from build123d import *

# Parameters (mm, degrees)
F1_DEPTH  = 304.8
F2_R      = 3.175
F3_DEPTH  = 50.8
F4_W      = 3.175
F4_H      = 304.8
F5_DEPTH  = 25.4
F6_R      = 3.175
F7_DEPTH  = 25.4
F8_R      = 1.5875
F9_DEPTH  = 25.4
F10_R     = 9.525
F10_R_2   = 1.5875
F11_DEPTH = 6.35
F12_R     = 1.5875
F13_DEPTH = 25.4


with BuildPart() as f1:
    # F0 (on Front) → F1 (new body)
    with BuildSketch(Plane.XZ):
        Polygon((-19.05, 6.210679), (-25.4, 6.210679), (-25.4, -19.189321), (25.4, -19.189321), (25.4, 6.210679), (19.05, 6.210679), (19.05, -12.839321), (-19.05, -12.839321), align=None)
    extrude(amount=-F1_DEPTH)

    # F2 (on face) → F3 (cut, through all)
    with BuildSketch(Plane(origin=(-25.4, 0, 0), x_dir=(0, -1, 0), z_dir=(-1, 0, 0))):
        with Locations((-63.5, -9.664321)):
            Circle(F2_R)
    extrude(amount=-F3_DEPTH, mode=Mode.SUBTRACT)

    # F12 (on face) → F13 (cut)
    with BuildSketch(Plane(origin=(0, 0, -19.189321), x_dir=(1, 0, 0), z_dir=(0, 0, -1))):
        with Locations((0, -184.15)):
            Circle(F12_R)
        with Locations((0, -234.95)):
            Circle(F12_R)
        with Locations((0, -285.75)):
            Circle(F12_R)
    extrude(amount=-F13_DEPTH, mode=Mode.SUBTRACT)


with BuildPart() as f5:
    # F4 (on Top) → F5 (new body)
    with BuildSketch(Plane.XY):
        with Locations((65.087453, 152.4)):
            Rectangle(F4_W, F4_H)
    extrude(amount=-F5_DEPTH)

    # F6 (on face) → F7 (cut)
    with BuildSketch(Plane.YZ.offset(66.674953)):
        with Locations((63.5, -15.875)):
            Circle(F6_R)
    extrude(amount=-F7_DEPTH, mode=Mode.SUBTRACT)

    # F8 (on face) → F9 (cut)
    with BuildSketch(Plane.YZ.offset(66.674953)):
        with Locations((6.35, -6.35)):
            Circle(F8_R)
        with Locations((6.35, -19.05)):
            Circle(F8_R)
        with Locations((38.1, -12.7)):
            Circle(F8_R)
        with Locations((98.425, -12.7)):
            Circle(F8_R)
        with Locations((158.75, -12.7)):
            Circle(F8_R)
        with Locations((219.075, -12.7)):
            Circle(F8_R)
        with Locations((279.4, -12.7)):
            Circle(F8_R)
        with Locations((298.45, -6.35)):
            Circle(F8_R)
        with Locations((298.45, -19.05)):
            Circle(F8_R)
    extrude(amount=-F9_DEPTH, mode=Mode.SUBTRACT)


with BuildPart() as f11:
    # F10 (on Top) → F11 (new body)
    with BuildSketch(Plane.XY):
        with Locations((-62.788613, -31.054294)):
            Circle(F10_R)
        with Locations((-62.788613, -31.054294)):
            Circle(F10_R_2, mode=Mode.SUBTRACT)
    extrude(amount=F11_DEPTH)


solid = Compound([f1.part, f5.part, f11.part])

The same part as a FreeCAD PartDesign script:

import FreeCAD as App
import Part
import Sketcher
Q = App.Units.Quantity


def add_polygon(sketch, points):
    """Adds a closed chain of lines whose ends are joined by coincident constraints."""
    first, n = sketch.GeometryCount, len(points)
    for a, b in zip(points, points[1:] + points[:1]):
        sketch.addGeometry(Part.LineSegment(App.Vector(*a, 0), App.Vector(*b, 0)), False)
    for i in range(n):
        sketch.addConstraint(Sketcher.Constraint("Coincident", first + i, 2, first + (i + 1) % n, 1))

doc = App.newDocument("Part")
body = doc.addObject("PartDesign::Body", "Body")

sketch1 = doc.addObject("Sketcher::SketchObject", "Sketch")
body.addObject(sketch1)
sketch1.AttachmentSupport = (doc.XZ_Plane, [""])
sketch1.MapMode = "FlatFace"
add_polygon(sketch1, [(-19, 6), (-25, 6), (-25, -19), (25, -19), (25, 6), (19, 6), (19, -13), (-19, -13)])
sketch1.addConstraint([
    Sketcher.Constraint("Horizontal", 0),
    Sketcher.Constraint("Vertical", 1),
    Sketcher.Constraint("Horizontal", 2),
    Sketcher.Constraint("Vertical", 3),
    Sketcher.Constraint("Horizontal", 4),
    Sketcher.Constraint("Vertical", 5),
    Sketcher.Constraint("Horizontal", 6),
    Sketcher.Constraint("Vertical", 7),
    Sketcher.Constraint("Symmetric", 0, 2, 3, 2, -2),
    Sketcher.Constraint("Equal", 0, 4),
    Sketcher.Constraint("DistanceX", 2, 1, 2, 2, Q("2 in")),
    Sketcher.Constraint("DistanceY", 1, 2, 1, 1, Q("1 in")),
    Sketcher.Constraint("DistanceX", 6, 2, 6, 1, Q("1.5 in")),
    Sketcher.Constraint("DistanceY", 5, 2, 5, 1, Q("0.75 in")),
    Sketcher.Constraint("DistanceY", -1, 1, 0, 2, Q("6.210679 mm")),
])
pad1 = doc.addObject("PartDesign::Pad", "Pad")
body.addObject(pad1)
pad1.Profile = sketch1
pad1.Length = Q("12 in")
pad1.Reversed = True

sketch2 = doc.addObject("Sketcher::SketchObject", "Sketch001")
body.addObject(sketch2)
sketch2.AttachmentSupport = (doc.YZ_Plane, [""])
sketch2.MapMode = "FlatFace"
sketch2.AttachmentOffset = App.Placement(App.Vector(0, 0, -1 * 25.4), App.Rotation())
sketch2.addGeometry(Part.Circle(App.Vector(63.5, -9.7, 0), App.Vector(0, 0, 1), 3.2), False)
sketch2.addConstraint([
    Sketcher.Constraint("Diameter", 0, Q("0.25 in")),
    Sketcher.Constraint("DistanceX", -1, 1, 0, 3, Q("2.5 in")),
    Sketcher.Constraint("DistanceY", 0, 3, -1, 1, Q("9.664321 mm")),
])
pocket1 = doc.addObject("PartDesign::Pocket", "Pocket")
body.addObject(pocket1)
pocket1.Profile = sketch2
pocket1.Type = "ThroughAll"
pocket1.Reversed = True

sketch3 = doc.addObject("Sketcher::SketchObject", "Sketch002")
body.addObject(sketch3)
sketch3.AttachmentSupport = (doc.XY_Plane, [""])
sketch3.MapMode = "FlatFace"
sketch3.AttachmentOffset = App.Placement(App.Vector(0, 0, -19.189321), App.Rotation())
sketch3.addGeometry([
    Part.Circle(App.Vector(0, 184.2, 0), App.Vector(0, 0, 1), 1.6),
    Part.Circle(App.Vector(0, 234.9, 0), App.Vector(0, 0, 1), 1.6),
    Part.Circle(App.Vector(0, 285.8, 0), App.Vector(0, 0, 1), 1.6),
], False)
sketch3.addConstraint([
    Sketcher.Constraint("Equal", 0, 1),
    Sketcher.Constraint("Equal", 1, 2),
    Sketcher.Constraint("PointOnObject", 0, 3, -2),
    Sketcher.Constraint("PointOnObject", 1, 3, -2),
    Sketcher.Constraint("PointOnObject", 2, 3, -2),
    Sketcher.Constraint("Diameter", 0, Q("0.125 in")),
    Sketcher.Constraint("DistanceY", 0, 3, 1, 3, Q("2 in")),
    Sketcher.Constraint("DistanceY", 1, 3, 2, 3, Q("2 in")),
    Sketcher.Constraint("DistanceY", -1, 1, 0, 3, Q("7.25 in")),
])
pocket2 = doc.addObject("PartDesign::Pocket", "Pocket001")
body.addObject(pocket2)
pocket2.Profile = sketch3
pocket2.Length = Q("1 in")
pocket2.Reversed = True
body2 = doc.addObject("PartDesign::Body", "Body001")

sketch4 = doc.addObject("Sketcher::SketchObject", "Sketch003")
body2.addObject(sketch4)
sketch4.AttachmentSupport = (doc.getObject("XY_Plane001"), [""])
sketch4.MapMode = "FlatFace"
add_polygon(sketch4, [(63.5, 304.8), (63.5, 0), (66.7, 0), (66.7, 304.8)])
sketch4.addConstraint([
    Sketcher.Constraint("Vertical", 0),
    Sketcher.Constraint("Horizontal", 1),
    Sketcher.Constraint("Vertical", 2),
    Sketcher.Constraint("Horizontal", 3),
    Sketcher.Constraint("PointOnObject", 0, 2, -1),
    Sketcher.Constraint("DistanceY", 0, 2, 0, 1, Q("12 in")),
    Sketcher.Constraint("DistanceX", 1, 1, 1, 2, Q("0.125 in")),
    Sketcher.Constraint("DistanceX", -1, 1, 0, 2, Q("63.499953 mm")),
])
pad2 = doc.addObject("PartDesign::Pad", "Pad001")
body2.addObject(pad2)
pad2.Profile = sketch4
pad2.Length = Q("1 in")
pad2.Reversed = True

sketch5 = doc.addObject("Sketcher::SketchObject", "Sketch004")
body2.addObject(sketch5)
sketch5.AttachmentSupport = (doc.getObject("YZ_Plane001"), [""])
sketch5.MapMode = "FlatFace"
sketch5.AttachmentOffset = App.Placement(App.Vector(0, 0, 66.674953), App.Rotation())
sketch5.addGeometry(Part.Circle(App.Vector(63.5, -15.9, 0), App.Vector(0, 0, 1), 3.2), False)
sketch5.addConstraint([
    Sketcher.Constraint("Diameter", 0, Q("0.25 in")),
    Sketcher.Constraint("DistanceX", -1, 1, 0, 3, Q("2.5 in")),
    Sketcher.Constraint("DistanceY", 0, 3, -1, 1, Q("0.625 in")),
])
pocket3 = doc.addObject("PartDesign::Pocket", "Pocket002")
body2.addObject(pocket3)
pocket3.Profile = sketch5
pocket3.Length = Q("1 in")

sketch6 = doc.addObject("Sketcher::SketchObject", "Sketch005")
body2.addObject(sketch6)
sketch6.AttachmentSupport = (doc.getObject("YZ_Plane001"), [""])
sketch6.MapMode = "FlatFace"
sketch6.AttachmentOffset = App.Placement(App.Vector(0, 0, 66.674953), App.Rotation())
sketch6.addGeometry([
    Part.Circle(App.Vector(6.3, -6.3, 0), App.Vector(0, 0, 1), 1.6),
    Part.Circle(App.Vector(6.3, -19.1, 0), App.Vector(0, 0, 1), 1.6),
    Part.Circle(App.Vector(38.1, -12.7, 0), App.Vector(0, 0, 1), 1.6),
    Part.Circle(App.Vector(98.4, -12.7, 0), App.Vector(0, 0, 1), 1.6),
    Part.Circle(App.Vector(158.8, -12.7, 0), App.Vector(0, 0, 1), 1.6),
    Part.Circle(App.Vector(219.1, -12.7, 0), App.Vector(0, 0, 1), 1.6),
    Part.Circle(App.Vector(279.4, -12.7, 0), App.Vector(0, 0, 1), 1.6),
    Part.Circle(App.Vector(298.4, -6.3, 0), App.Vector(0, 0, 1), 1.6),
    Part.Circle(App.Vector(298.4, -19.1, 0), App.Vector(0, 0, 1), 1.6),
], False)
sketch6.addConstraint([
    Sketcher.Constraint("Equal", 0, 1),
    Sketcher.Constraint("Equal", 1, 2),
    Sketcher.Constraint("Equal", 2, 3),
    Sketcher.Constraint("Equal", 3, 4),
    Sketcher.Constraint("Equal", 4, 5),
    Sketcher.Constraint("Equal", 5, 6),
    Sketcher.Constraint("Equal", 6, 7),
    Sketcher.Constraint("Equal", 7, 8),
    Sketcher.Constraint("Horizontal", 2, 3, 3, 3),
    Sketcher.Constraint("Horizontal", 3, 3, 4, 3),
    Sketcher.Constraint("Horizontal", 4, 3, 5, 3),
    Sketcher.Constraint("Horizontal", 5, 3, 6, 3),
    Sketcher.Constraint("Horizontal", 0, 3, 7, 3),
    Sketcher.Constraint("Horizontal", 1, 3, 8, 3),
    Sketcher.Constraint("Vertical", 0, 3, 1, 3),
    Sketcher.Constraint("Vertical", 7, 3, 8, 3),
    Sketcher.Constraint("Diameter", 0, Q("0.125 in")),
    Sketcher.Constraint("DistanceX", -1, 1, 6, 3, Q("11 in")),
    Sketcher.Constraint("DistanceX", 0, 3, 4, 3, Q("6 in")),
    Sketcher.Constraint("DistanceX", -1, 1, 2, 3, Q("1.5 in")),
    Sketcher.Constraint("DistanceY", 2, 3, -1, 1, Q("0.5 in")),
    Sketcher.Constraint("DistanceY", 1, 3, 0, 3, Q("0.5 in")),
    Sketcher.Constraint("DistanceX", 4, 3, 7, 3, Q("5.5 in")),
    Sketcher.Constraint("DistanceX", -1, 1, 0, 3, Q("0.25 in")),
    Sketcher.Constraint("DistanceY", 0, 3, -1, 1, Q("0.25 in")),
    Sketcher.Constraint("DistanceX", 3, 3, 5, 3, Q("4.75 in")),
    Sketcher.Constraint("DistanceX", -1, 1, 3, 3, Q("3.875 in")),
])
pocket4 = doc.addObject("PartDesign::Pocket", "Pocket003")
body2.addObject(pocket4)
pocket4.Profile = sketch6
pocket4.Length = Q("1 in")
body3 = doc.addObject("PartDesign::Body", "Body002")

sketch7 = doc.addObject("Sketcher::SketchObject", "Sketch006")
body3.addObject(sketch7)
sketch7.AttachmentSupport = (doc.getObject("XY_Plane002"), [""])
sketch7.MapMode = "FlatFace"
sketch7.addGeometry([
    Part.Circle(App.Vector(-62.8, -31.1, 0), App.Vector(0, 0, 1), 9.5),
    Part.Circle(App.Vector(-62.8, -31.1, 0), App.Vector(0, 0, 1), 1.6),
], False)
sketch7.addConstraint([
    Sketcher.Constraint("Coincident", 1, 3, 0, 3),
    Sketcher.Constraint("Diameter", 0, Q("0.75 in")),
    Sketcher.Constraint("Diameter", 1, Q("0.125 in")),
    Sketcher.Constraint("DistanceX", 0, 3, -1, 1, Q("62.788613 mm")),
    Sketcher.Constraint("DistanceY", 0, 3, -1, 1, Q("31.054294 mm")),
])
pad3 = doc.addObject("PartDesign::Pad", "Pad002")
body3.addObject(pad3)
pad3.Profile = sketch7
pad3.Length = Q("0.25 in")

doc.recompute()
